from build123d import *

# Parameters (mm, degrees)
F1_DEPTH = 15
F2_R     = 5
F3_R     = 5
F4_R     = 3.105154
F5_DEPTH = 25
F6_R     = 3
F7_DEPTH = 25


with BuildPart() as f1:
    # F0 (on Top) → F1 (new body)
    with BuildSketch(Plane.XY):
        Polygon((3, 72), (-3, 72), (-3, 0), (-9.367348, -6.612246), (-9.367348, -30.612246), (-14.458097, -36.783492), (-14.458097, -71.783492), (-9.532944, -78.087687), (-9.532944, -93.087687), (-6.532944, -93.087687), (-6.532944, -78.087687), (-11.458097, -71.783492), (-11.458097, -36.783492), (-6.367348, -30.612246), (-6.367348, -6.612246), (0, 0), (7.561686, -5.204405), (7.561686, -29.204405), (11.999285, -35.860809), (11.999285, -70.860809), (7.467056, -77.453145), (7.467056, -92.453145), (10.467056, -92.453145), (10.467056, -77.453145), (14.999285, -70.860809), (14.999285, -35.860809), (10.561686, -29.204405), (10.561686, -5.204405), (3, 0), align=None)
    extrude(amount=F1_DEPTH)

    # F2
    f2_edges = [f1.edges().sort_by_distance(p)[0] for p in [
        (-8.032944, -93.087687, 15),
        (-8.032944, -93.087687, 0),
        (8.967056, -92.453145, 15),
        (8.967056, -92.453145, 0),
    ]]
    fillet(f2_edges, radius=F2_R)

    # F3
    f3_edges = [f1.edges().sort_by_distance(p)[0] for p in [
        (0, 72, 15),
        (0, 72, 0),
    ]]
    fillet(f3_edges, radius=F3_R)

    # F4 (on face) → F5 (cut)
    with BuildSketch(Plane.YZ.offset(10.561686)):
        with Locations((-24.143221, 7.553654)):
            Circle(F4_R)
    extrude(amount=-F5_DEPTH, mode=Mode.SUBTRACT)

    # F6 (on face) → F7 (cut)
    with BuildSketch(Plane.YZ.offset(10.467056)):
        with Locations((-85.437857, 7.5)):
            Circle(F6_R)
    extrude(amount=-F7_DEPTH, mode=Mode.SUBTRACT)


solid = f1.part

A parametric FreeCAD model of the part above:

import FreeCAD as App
import Part
import Sketcher
from FreeCAD import Vector
Q = App.Units.Quantity


def edges_at(feature, points):
    """Names of the edges that pass closest to the given points."""
    edges = feature.Shape.Edges
    near = lambda p: min(range(len(edges)), key=lambda i: edges[i].distToShape(Part.Vertex(*p))[0])
    return sorted({f"Edge{near(p) + 1}" for p in points})

doc = App.newDocument("Part")
body = doc.addObject("PartDesign::Body", "Body")

# Sketch on XY plane
sketch1 = doc.addObject("Sketcher::SketchObject", "Sketch")
body.addObject(sketch1)
sketch1.AttachmentSupport = (doc.XY_Plane, [""])
sketch1.MapMode = "FlatFace"
sketch1.addGeometry([
    Part.LineSegment(Vector(3, 72, 0), Vector(-3, 72, 0)),  # 0
    Part.LineSegment(Vector(-3, 72, 0), Vector(-3, 0, 0)),  # 1
    Part.LineSegment(Vector(-3, 0, 0), Vector(-9.4, -6.6, 0)),  # 2
    Part.LineSegment(Vector(-9.4, -6.6, 0), Vector(-9.4, -30.6, 0)),  # 3
    Part.LineSegment(Vector(-9.4, -30.6, 0), Vector(-14.5, -36.8, 0)),  # 4
    Part.LineSegment(Vector(-14.5, -36.8, 0), Vector(-14.5, -71.8, 0)),  # 5
    Part.LineSegment(Vector(-14.5, -71.8, 0), Vector(-9.5, -78.1, 0)),  # 6
    Part.LineSegment(Vector(-9.5, -78.1, 0), Vector(-9.5, -93.1, 0)),  # 7
    Part.LineSegment(Vector(-9.5, -93.1, 0), Vector(-6.5, -93.1, 0)),  # 8
    Part.LineSegment(Vector(-6.5, -93.1, 0), Vector(-6.5, -78.1, 0)),  # 9
    Part.LineSegment(Vector(-6.5, -78.1, 0), Vector(-11.5, -71.8, 0)),  # 10
    Part.LineSegment(Vector(-11.5, -71.8, 0), Vector(-11.5, -36.8, 0)),  # 11
    Part.LineSegment(Vector(-11.5, -36.8, 0), Vector(-6.4, -30.6, 0)),  # 12
    Part.LineSegment(Vector(-6.4, -30.6, 0), Vector(-6.4, -6.6, 0)),  # 13
    Part.LineSegment(Vector(-6.4, -6.6, 0), Vector(0, 0, 0)),  # 14
    Part.LineSegment(Vector(0, 0, 0), Vector(7.6, -5.2, 0)),  # 15
    Part.LineSegment(Vector(7.6, -5.2, 0), Vector(7.6, -29.2, 0)),  # 16
    Part.LineSegment(Vector(7.6, -29.2, 0), Vector(12, -35.9, 0)),  # 17
    Part.LineSegment(Vector(12, -35.9, 0), Vector(12, -70.9, 0)),  # 18
    Part.LineSegment(Vector(12, -70.9, 0), Vector(7.5, -77.5, 0)),  # 19
    Part.LineSegment(Vector(7.5, -77.5, 0), Vector(7.5, -92.5, 0)),  # 20
    Part.LineSegment(Vector(7.5, -92.5, 0), Vector(10.5, -92.5, 0)),  # 21
    Part.LineSegment(Vector(10.5, -92.5, 0), Vector(10.5, -77.5, 0)),  # 22
    Part.LineSegment(Vector(10.5, -77.5, 0), Vector(15, -70.9, 0)),  # 23
    Part.LineSegment(Vector(15, -70.9, 0), Vector(15, -35.9, 0)),  # 24
    Part.LineSegment(Vector(15, -35.9, 0), Vector(10.6, -29.2, 0)),  # 25
    Part.LineSegment(Vector(10.6, -29.2, 0), Vector(10.6, -5.2, 0)),  # 26
    Part.LineSegment(Vector(10.6, -5.2, 0), Vector(3, 0, 0)),  # 27
    Part.LineSegment(Vector(3, 0, 0), Vector(3, 72, 0)),  # 28
], False)
sketch1.addConstraint([
    Sketcher.Constraint("Coincident", 0, 2, 1, 1),
    Sketcher.Constraint("Coincident", 1, 2, 2, 1),
    Sketcher.Constraint("Coincident", 2, 2, 3, 1),
    Sketcher.Constraint("Coincident", 3, 2, 4, 1),
    Sketcher.Constraint("Coincident", 4, 2, 5, 1),
    Sketcher.Constraint("Coincident", 5, 2, 6, 1),
    Sketcher.Constraint("Coincident", 6, 2, 7, 1),
    Sketcher.Constraint("Coincident", 7, 2, 8, 1),
    Sketcher.Constraint("Coincident", 8, 2, 9, 1),
    Sketcher.Constraint("Coincident", 9, 2, 10, 1),
    Sketcher.Constraint("Coincident", 10, 2, 11, 1),
    Sketcher.Constraint("Coincident", 11, 2, 12, 1),
    Sketcher.Constraint("Coincident", 12, 2, 13, 1),
    Sketcher.Constraint("Coincident", 13, 2, 14, 1),
    Sketcher.Constraint("Coincident", 14, 2, 15, 1),
    Sketcher.Constraint("Coincident", 15, 2, 16, 1),
    Sketcher.Constraint("Coincident", 16, 2, 17, 1),
    Sketcher.Constraint("Coincident", 17, 2, 18, 1),
    Sketcher.Constraint("Coincident", 18, 2, 19, 1),
    Sketcher.Constraint("Coincident", 19, 2, 20, 1),
    Sketcher.Constraint("Coincident", 20, 2, 21, 1),
    Sketcher.Constraint("Coincident", 21, 2, 22, 1),
    Sketcher.Constraint("Coincident", 22, 2, 23, 1),
    Sketcher.Constraint("Coincident", 23, 2, 24, 1),
    Sketcher.Constraint("Coincident", 24, 2, 25, 1),
    Sketcher.Constraint("Coincident", 25, 2, 26, 1),
    Sketcher.Constraint("Coincident", 26, 2, 27, 1),
    Sketcher.Constraint("Coincident", 27, 2, 28, 1),
    Sketcher.Constraint("Coincident", 28, 2, 0, 1),
    Sketcher.Constraint("Horizontal", 0),
    Sketcher.Constraint("Vertical", 1),
    Sketcher.Constraint("Vertical", 3),
    Sketcher.Constraint("Vertical", 5),
    Sketcher.Constraint("Vertical", 7),
    Sketcher.Constraint("Horizontal", 8),
    Sketcher.Constraint("Vertical", 9),
    Sketcher.Constraint("Vertical", 11),
    Sketcher.Constraint("Vertical", 13),
    Sketcher.Constraint("Vertical", 16),
    Sketcher.Constraint("Vertical", 18),
    Sketcher.Constraint("Vertical", 20),
    Sketcher.Constraint("Horizontal", 21),
    Sketcher.Constraint("Vertical", 22),
    Sketcher.Constraint("Vertical", 24),
    Sketcher.Constraint("Vertical", 26),
    Sketcher.Constraint("Vertical", 28),
    Sketcher.Constraint("Coincident", 14, 2, -1, 1),
    Sketcher.Constraint("Symmetric", 1, 2, 27, 2, -1, 1),
    Sketcher.Constraint("PointOnObject", 1, 2, -1),
    Sketcher.Constraint("Parallel", 6, 10),
    Sketcher.Constraint("Parallel", 4, 12),
    Sketcher.Constraint("Parallel", 2, 14),
    Sketcher.Constraint("Parallel", 19, 23),
    Sketcher.Constraint("Parallel", 17, 25),
    Sketcher.Constraint("Parallel", 15, 27),
    Sketcher.Constraint("Horizontal", 6, 2, 9, 2),
    Sketcher.Constraint("Horizontal", 5, 2, 10, 2),
    Sketcher.Constraint("Horizontal", 4, 2, 11, 2),
    Sketcher.Constraint("Horizontal", 3, 2, 12, 2),
    Sketcher.Constraint("Horizontal", 2, 2, 13, 2),
    Sketcher.Constraint("Horizontal", 19, 2, 22, 2),
    Sketcher.Constraint("Horizontal", 18, 2, 23, 2),
    Sketcher.Constraint("Horizontal", 17, 2, 24, 2),
    Sketcher.Constraint("Horizontal", 16, 2, 25, 2),
    Sketcher.Constraint("Horizontal", 15, 2, 26, 2),
    Sketcher.Constraint("Equal", 13, 16),
    Sketcher.Constraint("Equal", 11, 18),
    Sketcher.Constraint("Equal", 9, 20),
    Sketcher.Constraint("Equal", 4, 6),
    Sketcher.Constraint("Equal", 14, 15),
    Sketcher.Constraint("Equal", 12, 17),
    Sketcher.Constraint("Equal", 17, 19),
    Sketcher.Constraint("DistanceX", 0, 2, 0, 1, Q("6 mm")),
    Sketcher.Constraint("DistanceY", 1, 2, 1, 1, Q("72 mm")),
    Sketcher.Constraint("DistanceY", 3, 2, 3, 1, Q("24 mm")),
    Sketcher.Constraint("DistanceY", 5, 2, 5, 1, Q("35 mm")),
    Sketcher.Constraint("DistanceY", 7, 2, 7, 1, Q("15 mm")),
    Sketcher.Constraint("Distance", 4, Q("8 mm")),
    Sketcher.Constraint("DistanceX", 9, 2, 19, 2, Q("14 mm")),
    Sketcher.Constraint("DistanceX", 16, 2, 17, 2, Q("4.437599 mm")),
    Sketcher.Constraint("DistanceY", 5, 2, -1, 1, Q("71.783492 mm")),
    Sketcher.Constraint("DistanceY", 17, 2, -1, 1, Q("35.860809 mm")),
    Sketcher.Constraint("DistanceX", 4, 2, 3, 2, Q("5.090749 mm")),
    Sketcher.Constraint("DistanceY", 6, 2, 3, 2, Q("47.475441 mm")),
    Sketcher.Constraint("DistanceX", 9, 2, 18, 2, Q("18.532229 mm")),
])
pad1 = doc.addObject("PartDesign::Pad", "Pad")
body.addObject(pad1)
pad1.Profile = sketch1
pad1.Length = 15
doc.recompute()

fillet = doc.addObject("PartDesign::Fillet", "Fillet")
body.addObject(fillet)
fillet.Base = (pad1, edges_at(pad1, [
    (-8.033, -93.088, 15),
    (-8.033, -93.088, 0),
    (8.967, -92.453, 15),
    (8.967, -92.453, 0),
]))
fillet.Radius = 5
doc.recompute()

fillet2 = doc.addObject("PartDesign::Fillet", "Fillet001")
body.addObject(fillet2)
fillet2.Base = (fillet, edges_at(fillet, [(0, 72, 15), (0, 72, 0)]))
fillet2.Radius = 5

# Sketch on YZ plane
sketch2 = doc.addObject("Sketcher::SketchObject", "Sketch001")
body.addObject(sketch2)
sketch2.AttachmentSupport = (doc.YZ_Plane, [""])
sketch2.MapMode = "FlatFace"
sketch2.AttachmentOffset = App.Placement(Vector(0, 0, 10.561686), App.Rotation())
sketch2.addGeometry(Part.Circle(Vector(-24.1, 7.6, 0), Vector(0, 0, 1), 3.1), False)
sketch2.addConstraint([
    Sketcher.Constraint("Diameter", 0, Q("6.210308 mm")),
    Sketcher.Constraint("DistanceX", 0, 3, -1, 1, Q("24.143221 mm")),
    Sketcher.Constraint("DistanceY", -1, 1, 0, 3, Q("7.553654 mm")),
])
pocket1 = doc.addObject("PartDesign::Pocket", "Pocket")
body.addObject(pocket1)
pocket1.Profile = sketch2
pocket1.Length = 25

# Sketch on YZ plane
sketch3 = doc.addObject("Sketcher::SketchObject", "Sketch002")
body.addObject(sketch3)
sketch3.AttachmentSupport = (doc.YZ_Plane, [""])
sketch3.MapMode = "FlatFace"
sketch3.AttachmentOffset = App.Placement(Vector(0, 0, 10.467056), App.Rotation())
sketch3.addGeometry(Part.Circle(Vector(-85.4, 7.5, 0), Vector(0, 0, 1), 3), False)
sketch3.addConstraint([
    Sketcher.Constraint("Diameter", 0, Q("6 mm")),
    Sketcher.Constraint("DistanceY", -1, 1, 0, 3, Q("7.5 mm")),
    Sketcher.Constraint("DistanceX", 0, 3, -1, 1, Q("85.437857 mm")),
])
pocket2 = doc.addObject("PartDesign::Pocket", "Pocket001")
body.addObject(pocket2)
pocket2.Profile = sketch3
pocket2.Length = 25

doc.recompute()
